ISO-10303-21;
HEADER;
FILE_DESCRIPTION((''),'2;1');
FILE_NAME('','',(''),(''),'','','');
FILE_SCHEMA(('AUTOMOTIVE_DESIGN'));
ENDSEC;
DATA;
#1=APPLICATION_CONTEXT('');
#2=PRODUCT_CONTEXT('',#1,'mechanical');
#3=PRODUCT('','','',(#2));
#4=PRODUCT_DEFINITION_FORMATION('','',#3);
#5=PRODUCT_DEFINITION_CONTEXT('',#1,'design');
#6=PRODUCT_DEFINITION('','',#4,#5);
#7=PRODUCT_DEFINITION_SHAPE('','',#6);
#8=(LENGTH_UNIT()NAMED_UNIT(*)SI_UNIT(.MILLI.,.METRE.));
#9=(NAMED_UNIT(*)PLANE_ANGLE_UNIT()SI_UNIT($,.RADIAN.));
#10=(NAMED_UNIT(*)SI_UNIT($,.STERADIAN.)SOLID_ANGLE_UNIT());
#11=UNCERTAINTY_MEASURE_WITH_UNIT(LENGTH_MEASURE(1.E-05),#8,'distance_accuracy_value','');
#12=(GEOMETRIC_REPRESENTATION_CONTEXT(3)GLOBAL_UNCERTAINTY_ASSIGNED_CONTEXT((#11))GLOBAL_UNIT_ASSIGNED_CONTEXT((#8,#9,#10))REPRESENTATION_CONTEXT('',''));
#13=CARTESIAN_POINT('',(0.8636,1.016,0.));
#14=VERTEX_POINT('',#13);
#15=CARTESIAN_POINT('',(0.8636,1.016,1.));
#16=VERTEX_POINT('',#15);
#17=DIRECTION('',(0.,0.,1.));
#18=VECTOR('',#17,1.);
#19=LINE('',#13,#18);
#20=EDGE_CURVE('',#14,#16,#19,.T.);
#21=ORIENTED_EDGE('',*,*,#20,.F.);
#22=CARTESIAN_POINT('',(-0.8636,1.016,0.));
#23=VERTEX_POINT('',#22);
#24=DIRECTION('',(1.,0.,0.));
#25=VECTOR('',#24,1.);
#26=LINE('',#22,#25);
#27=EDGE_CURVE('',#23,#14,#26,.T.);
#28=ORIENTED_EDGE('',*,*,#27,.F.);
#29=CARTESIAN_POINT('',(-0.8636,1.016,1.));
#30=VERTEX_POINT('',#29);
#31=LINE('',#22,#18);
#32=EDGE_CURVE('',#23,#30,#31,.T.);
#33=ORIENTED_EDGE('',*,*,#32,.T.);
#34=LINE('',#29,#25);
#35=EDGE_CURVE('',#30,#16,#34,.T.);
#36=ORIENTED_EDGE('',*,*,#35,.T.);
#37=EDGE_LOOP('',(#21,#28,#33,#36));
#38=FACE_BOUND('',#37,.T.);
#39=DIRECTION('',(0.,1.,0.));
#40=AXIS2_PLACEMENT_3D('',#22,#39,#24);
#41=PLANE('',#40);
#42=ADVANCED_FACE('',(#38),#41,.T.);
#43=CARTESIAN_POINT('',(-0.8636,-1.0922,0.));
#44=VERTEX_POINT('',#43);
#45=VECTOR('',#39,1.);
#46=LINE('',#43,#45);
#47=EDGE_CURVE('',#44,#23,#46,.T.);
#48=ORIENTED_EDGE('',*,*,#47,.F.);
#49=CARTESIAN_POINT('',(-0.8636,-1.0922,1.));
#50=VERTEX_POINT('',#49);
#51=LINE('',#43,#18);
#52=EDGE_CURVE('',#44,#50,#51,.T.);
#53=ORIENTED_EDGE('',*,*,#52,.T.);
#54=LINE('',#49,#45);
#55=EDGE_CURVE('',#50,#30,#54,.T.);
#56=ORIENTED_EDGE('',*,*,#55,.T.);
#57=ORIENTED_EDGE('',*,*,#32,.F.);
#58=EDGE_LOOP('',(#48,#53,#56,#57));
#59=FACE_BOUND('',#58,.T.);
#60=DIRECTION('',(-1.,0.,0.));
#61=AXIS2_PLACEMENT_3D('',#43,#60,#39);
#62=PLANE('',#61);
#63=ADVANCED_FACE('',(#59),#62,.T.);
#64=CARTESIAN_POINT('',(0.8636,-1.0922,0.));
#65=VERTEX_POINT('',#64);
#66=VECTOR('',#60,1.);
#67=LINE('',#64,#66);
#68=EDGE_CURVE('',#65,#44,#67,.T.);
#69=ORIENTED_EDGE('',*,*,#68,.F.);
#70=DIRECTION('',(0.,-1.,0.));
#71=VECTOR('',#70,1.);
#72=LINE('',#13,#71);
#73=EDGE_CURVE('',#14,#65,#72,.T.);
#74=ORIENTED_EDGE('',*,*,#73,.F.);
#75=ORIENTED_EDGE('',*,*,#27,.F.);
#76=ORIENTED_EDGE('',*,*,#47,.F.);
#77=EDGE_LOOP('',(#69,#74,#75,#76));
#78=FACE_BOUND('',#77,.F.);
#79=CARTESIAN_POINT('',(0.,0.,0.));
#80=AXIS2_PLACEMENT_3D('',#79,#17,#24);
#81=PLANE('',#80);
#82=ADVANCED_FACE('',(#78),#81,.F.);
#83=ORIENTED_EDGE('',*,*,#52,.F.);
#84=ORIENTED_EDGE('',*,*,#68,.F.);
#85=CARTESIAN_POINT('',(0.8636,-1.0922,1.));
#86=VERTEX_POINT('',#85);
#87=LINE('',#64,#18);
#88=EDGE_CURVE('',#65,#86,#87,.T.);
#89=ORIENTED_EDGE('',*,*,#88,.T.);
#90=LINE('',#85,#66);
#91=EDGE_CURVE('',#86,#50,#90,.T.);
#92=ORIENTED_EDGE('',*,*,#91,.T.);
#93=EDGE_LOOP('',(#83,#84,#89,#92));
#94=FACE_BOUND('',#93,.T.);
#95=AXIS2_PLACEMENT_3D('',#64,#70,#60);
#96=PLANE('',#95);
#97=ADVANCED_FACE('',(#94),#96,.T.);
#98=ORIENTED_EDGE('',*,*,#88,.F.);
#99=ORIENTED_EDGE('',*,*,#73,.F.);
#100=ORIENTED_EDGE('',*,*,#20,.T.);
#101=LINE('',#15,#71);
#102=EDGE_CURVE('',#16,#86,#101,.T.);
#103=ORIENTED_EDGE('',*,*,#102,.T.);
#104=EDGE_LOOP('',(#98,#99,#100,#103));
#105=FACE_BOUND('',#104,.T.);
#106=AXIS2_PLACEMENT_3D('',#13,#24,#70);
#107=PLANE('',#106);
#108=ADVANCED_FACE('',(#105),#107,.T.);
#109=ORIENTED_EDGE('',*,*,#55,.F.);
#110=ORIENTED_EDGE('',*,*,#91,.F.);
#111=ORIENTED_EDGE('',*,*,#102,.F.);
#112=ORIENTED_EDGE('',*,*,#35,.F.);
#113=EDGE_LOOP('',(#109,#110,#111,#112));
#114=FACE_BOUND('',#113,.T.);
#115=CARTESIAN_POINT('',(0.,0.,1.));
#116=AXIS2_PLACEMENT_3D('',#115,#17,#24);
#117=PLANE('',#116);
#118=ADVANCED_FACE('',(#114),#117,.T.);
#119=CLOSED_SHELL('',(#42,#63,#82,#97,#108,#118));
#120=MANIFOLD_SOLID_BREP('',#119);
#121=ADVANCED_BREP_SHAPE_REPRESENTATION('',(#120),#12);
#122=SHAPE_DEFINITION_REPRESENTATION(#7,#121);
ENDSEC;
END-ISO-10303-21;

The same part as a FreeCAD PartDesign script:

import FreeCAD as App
import Part
import Sketcher

V = App.Vector
Q = App.Units.Quantity


def add_polygon(sketch, points):
    """Adds a closed chain of lines whose ends are joined by coincident constraints."""
    first, n = sketch.GeometryCount, len(points)
    for a, b in zip(points, points[1:] + points[:1]):
        sketch.addGeometry(Part.LineSegment(App.Vector(*a, 0), App.Vector(*b, 0)), False)
    for i in range(n):
        sketch.addConstraint(Sketcher.Constraint("Coincident", first + i, 2, first + (i + 1) % n, 1))

doc = App.newDocument("Part")
body = doc.addObject("PartDesign::Body", "Body")

sketch1 = body.newObject("Sketcher::SketchObject", "Sketch")
sketch1.AttachmentSupport = (doc.getObject("XY_Plane"), [""])
sketch1.MapMode = "FlatFace"
add_polygon(sketch1, [(0.9, 1), (-0.9, 1), (-0.9, -1.1), (0.9, -1.1)])
sketch1.addConstraint([
    Sketcher.Constraint("Horizontal", 0),
    Sketcher.Constraint("Vertical", 1),
    Sketcher.Constraint("Horizontal", 2),
    Sketcher.Constraint("Vertical", 3),
    Sketcher.Constraint("DistanceX", 0, 2, 0, 1, Q("0.068 in")),
    Sketcher.Constraint("DistanceY", 1, 2, 1, 1, Q("0.083 in")),
    Sketcher.Constraint("DistanceY", -1, 1, 0, 2, Q("0.04 in")),
    Sketcher.Constraint("DistanceX", 0, 2, -1, 1, Q("0.034 in")),
])
pad1 = body.newObject("PartDesign::Pad", "Pad")
pad1.Profile = sketch1
pad1.Length = 1

doc.recompute()
